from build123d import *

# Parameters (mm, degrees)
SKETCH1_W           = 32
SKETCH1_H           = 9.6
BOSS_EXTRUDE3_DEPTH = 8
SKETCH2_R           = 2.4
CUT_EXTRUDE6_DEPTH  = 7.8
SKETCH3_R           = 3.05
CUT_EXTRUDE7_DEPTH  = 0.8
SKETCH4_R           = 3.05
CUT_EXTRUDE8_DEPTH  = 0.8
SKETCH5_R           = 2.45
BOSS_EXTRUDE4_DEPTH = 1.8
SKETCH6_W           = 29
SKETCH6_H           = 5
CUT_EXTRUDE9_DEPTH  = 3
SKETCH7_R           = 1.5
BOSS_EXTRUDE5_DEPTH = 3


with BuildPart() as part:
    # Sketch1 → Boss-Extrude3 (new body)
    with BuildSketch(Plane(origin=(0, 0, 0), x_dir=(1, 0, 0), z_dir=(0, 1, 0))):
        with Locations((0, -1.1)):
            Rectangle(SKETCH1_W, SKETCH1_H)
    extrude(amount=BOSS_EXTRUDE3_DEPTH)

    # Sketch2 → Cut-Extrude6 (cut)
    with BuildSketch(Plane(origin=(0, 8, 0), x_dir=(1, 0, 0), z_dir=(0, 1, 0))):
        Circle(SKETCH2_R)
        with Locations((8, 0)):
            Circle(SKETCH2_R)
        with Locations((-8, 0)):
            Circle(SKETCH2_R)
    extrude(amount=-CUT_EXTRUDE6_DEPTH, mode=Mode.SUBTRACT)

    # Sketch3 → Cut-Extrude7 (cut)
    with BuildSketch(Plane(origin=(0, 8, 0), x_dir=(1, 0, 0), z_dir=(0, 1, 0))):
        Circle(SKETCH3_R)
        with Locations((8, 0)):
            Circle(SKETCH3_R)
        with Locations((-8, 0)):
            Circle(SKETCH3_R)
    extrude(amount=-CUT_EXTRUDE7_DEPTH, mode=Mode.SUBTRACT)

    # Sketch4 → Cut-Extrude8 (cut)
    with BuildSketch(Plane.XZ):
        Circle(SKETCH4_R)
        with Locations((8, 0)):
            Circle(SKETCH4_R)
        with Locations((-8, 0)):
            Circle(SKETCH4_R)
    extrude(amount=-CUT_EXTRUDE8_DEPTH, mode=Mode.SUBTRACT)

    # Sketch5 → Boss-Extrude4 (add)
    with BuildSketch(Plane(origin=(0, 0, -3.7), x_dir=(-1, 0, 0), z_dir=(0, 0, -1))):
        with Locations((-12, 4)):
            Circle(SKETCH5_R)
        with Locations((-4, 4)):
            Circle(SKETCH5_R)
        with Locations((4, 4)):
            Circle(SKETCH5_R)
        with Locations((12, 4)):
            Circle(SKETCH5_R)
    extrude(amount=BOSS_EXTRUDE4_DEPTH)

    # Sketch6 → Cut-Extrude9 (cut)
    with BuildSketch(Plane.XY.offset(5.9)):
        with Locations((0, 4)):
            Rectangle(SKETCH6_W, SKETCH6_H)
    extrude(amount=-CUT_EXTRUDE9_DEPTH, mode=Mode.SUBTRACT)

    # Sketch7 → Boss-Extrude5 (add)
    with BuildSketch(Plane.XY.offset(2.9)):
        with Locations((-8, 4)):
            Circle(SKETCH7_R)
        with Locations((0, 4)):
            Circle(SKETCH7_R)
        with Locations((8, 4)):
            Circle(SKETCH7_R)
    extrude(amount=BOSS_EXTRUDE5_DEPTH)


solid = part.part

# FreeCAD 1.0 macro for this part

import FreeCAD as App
import Part
import Sketcher

V = App.Vector

doc = App.newDocument("Part")
body = doc.addObject("PartDesign::Body", "Body")

# Sketch on XZ plane
sketch1 = body.newObject("Sketcher::SketchObject", "Sketch")
sketch1.AttachmentSupport = (doc.getObject("XZ_Plane"), [""])
sketch1.MapMode = "FlatFace"
sketch1.addGeometry([
    Part.LineSegment(V(-16, -4, 0), V(-16, 6, 0)),
    Part.LineSegment(V(-16, 6, 0), V(16, 6, 0)),
    Part.LineSegment(V(16, 6, 0), V(16, -4, 0)),
    Part.LineSegment(V(16, -4, 0), V(-16, -4, 0)),
], False)
sketch1.addConstraint([
    Sketcher.Constraint("Coincident", 0, 2, 1, 1),
    Sketcher.Constraint("Coincident", 1, 2, 2, 1),
    Sketcher.Constraint("Coincident", 2, 2, 3, 1),
    Sketcher.Constraint("Coincident", 3, 2, 0, 1),
    Sketcher.Constraint("Vertical", 0),
    Sketcher.Constraint("Horizontal", 1),
    Sketcher.Constraint("Vertical", 2),
    Sketcher.Constraint("Horizontal", 3),
    Sketcher.Constraint("DistanceX", 1, 1, 1, 2, 32.0),
    Sketcher.Constraint("DistanceY", 0, 1, 0, 2, 9.6),
    Sketcher.Constraint("DistanceX", 0, 2, -1, 1, 16.0),
    Sketcher.Constraint("DistanceY", -1, 1, 0, 2, 5.9),
])
pad1 = body.newObject("PartDesign::Pad", "Pad")
pad1.Profile = sketch1
pad1.Length = 8
pad1.Reversed = True

# Sketch on XZ plane
sketch2 = body.newObject("Sketcher::SketchObject", "Sketch001")
sketch2.AttachmentSupport = (doc.getObject("XZ_Plane"), [""])
sketch2.MapMode = "FlatFace"
sketch2.AttachmentOffset = App.Placement(V(0, 0, -8), App.Rotation())
sketch2.addGeometry([
    Part.Circle(V(0, 0, 0), V(0, 0, 1), 2.4),
    Part.Circle(V(8, 0, 0), V(0, 0, 1), 2.4),
    Part.Circle(V(-8, 0, 0), V(0, 0, 1), 2.4),
], False)
sketch2.addConstraint([
    Sketcher.Constraint("Coincident", 0, 3, -1, 1),
    Sketcher.Constraint("Equal", 0, 1),
    Sketcher.Constraint("Equal", 1, 2),
    Sketcher.Constraint("Symmetric", 1, 3, 2, 3, -1, 1),
    Sketcher.Constraint("PointOnObject", 1, 3, -1),
    Sketcher.Constraint("Diameter", 0, 4.8),
    Sketcher.Constraint("DistanceX", -1, 1, 1, 3, 8.0),
])
pocket1 = body.newObject("PartDesign::Pocket", "Pocket")
pocket1.Profile = sketch2
pocket1.Length = 7.8
pocket1.Reversed = True

# Sketch on XZ plane
sketch3 = body.newObject("Sketcher::SketchObject", "Sketch002")
sketch3.AttachmentSupport = (doc.getObject("XZ_Plane"), [""])
sketch3.MapMode = "FlatFace"
sketch3.AttachmentOffset = App.Placement(V(0, 0, -8), App.Rotation())
sketch3.addGeometry([
    Part.Circle(V(0, 0, 0), V(0, 0, 1), 3),
    Part.Circle(V(8, 0, 0), V(0, 0, 1), 3),
    Part.Circle(V(-8, 0, 0), V(0, 0, 1), 3),
], False)
sketch3.addConstraint([
    Sketcher.Constraint("Coincident", 0, 3, -1, 1),
    Sketcher.Constraint("Equal", 0, 1),
    Sketcher.Constraint("Equal", 1, 2),
    Sketcher.Constraint("Symmetric", 1, 3, 2, 3, -1, 1),
    Sketcher.Constraint("PointOnObject", 1, 3, -1),
    Sketcher.Constraint("Diameter", 0, 6.1),
    Sketcher.Constraint("DistanceX", -1, 1, 1, 3, 8.0),
])
pocket2 = body.newObject("PartDesign::Pocket", "Pocket001")
pocket2.Profile = sketch3
pocket2.Length = 0.8
pocket2.Reversed = True

# Sketch on XZ plane
sketch4 = body.newObject("Sketcher::SketchObject", "Sketch003")
sketch4.AttachmentSupport = (doc.getObject("XZ_Plane"), [""])
sketch4.MapMode = "FlatFace"
sketch4.addGeometry([
    Part.Circle(V(0, 0, 0), V(0, 0, 1), 3),
    Part.Circle(V(8, 0, 0), V(0, 0, 1), 3),
    Part.Circle(V(-8, 0, 0), V(0, 0, 1), 3),
], False)
sketch4.addConstraint([
    Sketcher.Constraint("Coincident", 0, 3, -1, 1),
    Sketcher.Constraint("Equal", 0, 1),
    Sketcher.Constraint("Equal", 1, 2),
    Sketcher.Constraint("Symmetric", 1, 3, 2, 3, -1, 1),
    Sketcher.Constraint("PointOnObject", 1, 3, -1),
    Sketcher.Constraint("Diameter", 0, 6.1),
    Sketcher.Constraint("DistanceX", -1, 1, 1, 3, 8.0),
])
pocket3 = body.newObject("PartDesign::Pocket", "Pocket002")
pocket3.Profile = sketch4
pocket3.Length = 0.8

# Sketch on XY plane
sketch5 = body.newObject("Sketcher::SketchObject", "Sketch004")
sketch5.AttachmentSupport = (doc.getObject("XY_Plane"), [""])
sketch5.MapMode = "FlatFace"
sketch5.AttachmentOffset = App.Placement(V(0, 0, -3.7), App.Rotation())
sketch5.addGeometry([
    Part.Circle(V(12, 4, 0), V(0, 0, 1), 2.5),
    Part.Circle(V(4, 4, 0), V(0, 0, 1), 2.5),
    Part.Circle(V(-4, 4, 0), V(0, 0, 1), 2.5),
    Part.Circle(V(-12, 4, 0), V(0, 0, 1), 2.5),
], False)
sketch5.addConstraint([
    Sketcher.Constraint("Equal", 0, 1),
    Sketcher.Constraint("Equal", 1, 2),
    Sketcher.Constraint("Equal", 2, 3),
    Sketcher.Constraint("Symmetric", 1, 3, 2, 3, -2),
    Sketcher.Constraint("Symmetric", 0, 3, 3, 3, -2),
    Sketcher.Constraint("Horizontal", 0, 3, 1, 3),
    Sketcher.Constraint("Diameter", 0, 4.9),
    Sketcher.Constraint("DistanceX", -1, 1, 0, 3, 12.0),
    Sketcher.Constraint("DistanceY", -1, 1, 0, 3, 4.0),
    Sketcher.Constraint("DistanceX", -1, 1, 1, 3, 4.0),
])
pad2 = body.newObject("PartDesign::Pad", "Pad001")
pad2.Profile = sketch5
pad2.Length = 1.8
pad2.Reversed = True

# Sketch on XY plane
sketch6 = body.newObject("Sketcher::SketchObject", "Sketch005")
sketch6.AttachmentSupport = (doc.getObject("XY_Plane"), [""])
sketch6.MapMode = "FlatFace"
sketch6.AttachmentOffset = App.Placement(V(0, 0, 5.9), App.Rotation())
sketch6.addGeometry([
    Part.LineSegment(V(-14, 6, 0), V(-14, 2, 0)),
    Part.LineSegment(V(-14, 2, 0), V(14, 2, 0)),
    Part.LineSegment(V(14, 2, 0), V(14, 6, 0)),
    Part.LineSegment(V(14, 6, 0), V(-14, 6, 0)),
], False)
sketch6.addConstraint([
    Sketcher.Constraint("Coincident", 0, 2, 1, 1),
    Sketcher.Constraint("Coincident", 1, 2, 2, 1),
    Sketcher.Constraint("Coincident", 2, 2, 3, 1),
    Sketcher.Constraint("Coincident", 3, 2, 0, 1),
    Sketcher.Constraint("Vertical", 0),
    Sketcher.Constraint("Horizontal", 1),
    Sketcher.Constraint("Vertical", 2),
    Sketcher.Constraint("Horizontal", 3),
    Sketcher.Constraint("DistanceX", 1, 1, 1, 2, 29.0),
    Sketcher.Constraint("DistanceY", 0, 2, 0, 1, 5.0),
    Sketcher.Constraint("DistanceX", 0, 2, -1, 1, 14.5),
    Sketcher.Constraint("DistanceY", -1, 1, 0, 2, 1.5),
])
pocket4 = body.newObject("PartDesign::Pocket", "Pocket003")
pocket4.Profile = sketch6
pocket4.Length = 3

# Sketch on XY plane
sketch7 = body.newObject("Sketcher::SketchObject", "Sketch006")
sketch7.AttachmentSupport = (doc.getObject("XY_Plane"), [""])
sketch7.MapMode = "FlatFace"
sketch7.AttachmentOffset = App.Placement(V(0, 0, 2.9), App.Rotation())
sketch7.addGeometry([
    Part.Circle(V(-8, 4, 0), V(0, 0, 1), 1.5),
    Part.Circle(V(0, 4, 0), V(0, 0, 1), 1.5),
    Part.Circle(V(8, 4, 0), V(0, 0, 1), 1.5),
], False)
sketch7.addConstraint([
    Sketcher.Constraint("Equal", 0, 1),
    Sketcher.Constraint("Equal", 1, 2),
    Sketcher.Constraint("Symmetric", 0, 3, 2, 3, -2),
    Sketcher.Constraint("PointOnObject", 1, 3, -2),
    Sketcher.Constraint("Horizontal", 0, 3, 1, 3),
    Sketcher.Constraint("Diameter", 0, 3.0),
    Sketcher.Constraint("DistanceX", 0, 3, -1, 1, 8.0),
    Sketcher.Constraint("DistanceY", -1, 1, 0, 3, 4.0),
])
pad3 = body.newObject("PartDesign::Pad", "Pad002")
pad3.Profile = sketch7
pad3.Length = 3

doc.recompute()
